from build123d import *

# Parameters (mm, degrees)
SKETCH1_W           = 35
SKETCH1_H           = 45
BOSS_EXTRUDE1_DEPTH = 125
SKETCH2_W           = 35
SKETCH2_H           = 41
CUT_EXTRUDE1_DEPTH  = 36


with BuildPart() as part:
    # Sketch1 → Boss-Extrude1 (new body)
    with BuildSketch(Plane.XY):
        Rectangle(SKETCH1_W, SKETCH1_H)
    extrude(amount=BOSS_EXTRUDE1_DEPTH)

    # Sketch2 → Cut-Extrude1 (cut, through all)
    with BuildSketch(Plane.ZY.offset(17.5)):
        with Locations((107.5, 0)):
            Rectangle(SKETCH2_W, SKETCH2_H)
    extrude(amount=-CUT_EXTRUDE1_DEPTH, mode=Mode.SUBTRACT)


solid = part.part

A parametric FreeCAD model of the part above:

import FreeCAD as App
import Part
import Sketcher

doc = App.newDocument("Part")
params = doc.addObject("Spreadsheet::Sheet", "Params")
for row, (alias, value) in enumerate([
    ("sketch1_width", "35 mm"),
    ("sketch1_height", "45 mm"),
    ("pad1_length", "125 mm"),
    ("sketch2_width", "41 mm"),
    ("sketch2_height", "35 mm"),
], start=1):
    params.set(f"A{row}", alias)
    params.set(f"B{row}", "=" + value)
    params.setAlias(f"B{row}", alias)

body = doc.addObject("PartDesign::Body", "Body")

# Sketch on XY plane
sketch1 = body.newObject("Sketcher::SketchObject", "Sketch")
sketch1.AttachmentSupport = (doc.getObject("XY_Plane"), [""])
sketch1.MapMode = "FlatFace"
sketch1.addGeometry([
    Part.LineSegment(App.Vector(-18, 22, 0), App.Vector(-18, -22, 0)),
    Part.LineSegment(App.Vector(-18, -22, 0), App.Vector(18, -22, 0)),
    Part.LineSegment(App.Vector(18, -22, 0), App.Vector(18, 22, 0)),
    Part.LineSegment(App.Vector(18, 22, 0), App.Vector(-18, 22, 0)),
], False)
sketch1.addConstraint([
    Sketcher.Constraint("Coincident", 0, 2, 1, 1),
    Sketcher.Constraint("Coincident", 1, 2, 2, 1),
    Sketcher.Constraint("Coincident", 2, 2, 3, 1),
    Sketcher.Constraint("Coincident", 3, 2, 0, 1),
    Sketcher.Constraint("Vertical", 0),
    Sketcher.Constraint("Horizontal", 1),
    Sketcher.Constraint("Vertical", 2),
    Sketcher.Constraint("Horizontal", 3),
    Sketcher.Constraint("Symmetric", 0, 2, 2, 2, -1, 1),
    Sketcher.Constraint("DistanceX", 1, 1, 1, 2, 35.0),
    Sketcher.Constraint("DistanceY", 0, 2, 0, 1, 45.0),
])
sketch1.setExpression("Constraints[9]", "Params.sketch1_width")
sketch1.setExpression("Constraints[10]", "Params.sketch1_height")
pad1 = body.newObject("PartDesign::Pad", "Pad")
pad1.Profile = sketch1
pad1.setExpression("Length", "Params.pad1_length")

# Sketch on YZ plane
sketch2 = body.newObject("Sketcher::SketchObject", "Sketch001")
sketch2.AttachmentSupport = (doc.getObject("YZ_Plane"), [""])
sketch2.MapMode = "FlatFace"
sketch2.AttachmentOffset = App.Placement(App.Vector(0, 0, -17.5), App.Rotation())
sketch2.addGeometry([
    Part.LineSegment(App.Vector(20, 90, 0), App.Vector(-20, 90, 0)),
    Part.LineSegment(App.Vector(-20, 90, 0), App.Vector(-20, 125, 0)),
    Part.LineSegment(App.Vector(-20, 125, 0), App.Vector(20, 125, 0)),
    Part.LineSegment(App.Vector(20, 125, 0), App.Vector(20, 90, 0)),
], False)
sketch2.addConstraint([
    Sketcher.Constraint("Coincident", 0, 2, 1, 1),
    Sketcher.Constraint("Coincident", 1, 2, 2, 1),
    Sketcher.Constraint("Coincident", 2, 2, 3, 1),
    Sketcher.Constraint("Coincident", 3, 2, 0, 1),
    Sketcher.Constraint("Horizontal", 0),
    Sketcher.Constraint("Vertical", 1),
    Sketcher.Constraint("Horizontal", 2),
    Sketcher.Constraint("Vertical", 3),
    Sketcher.Constraint("DistanceX", 0, 2, 0, 1, 41.0),
    Sketcher.Constraint("DistanceY", 1, 1, 1, 2, 35.0),
    Sketcher.Constraint("DistanceY", -1, 1, 0, 2, 90.0),
    Sketcher.Constraint("DistanceX", 0, 2, -1, 1, 20.5),
])
sketch2.setExpression("Constraints[8]", "Params.sketch2_width")
sketch2.setExpression("Constraints[9]", "Params.sketch2_height")
pocket1 = body.newObject("PartDesign::Pocket", "Pocket")
pocket1.Profile = sketch2
pocket1.Type = "ThroughAll"
pocket1.Reversed = True

doc.recompute()
